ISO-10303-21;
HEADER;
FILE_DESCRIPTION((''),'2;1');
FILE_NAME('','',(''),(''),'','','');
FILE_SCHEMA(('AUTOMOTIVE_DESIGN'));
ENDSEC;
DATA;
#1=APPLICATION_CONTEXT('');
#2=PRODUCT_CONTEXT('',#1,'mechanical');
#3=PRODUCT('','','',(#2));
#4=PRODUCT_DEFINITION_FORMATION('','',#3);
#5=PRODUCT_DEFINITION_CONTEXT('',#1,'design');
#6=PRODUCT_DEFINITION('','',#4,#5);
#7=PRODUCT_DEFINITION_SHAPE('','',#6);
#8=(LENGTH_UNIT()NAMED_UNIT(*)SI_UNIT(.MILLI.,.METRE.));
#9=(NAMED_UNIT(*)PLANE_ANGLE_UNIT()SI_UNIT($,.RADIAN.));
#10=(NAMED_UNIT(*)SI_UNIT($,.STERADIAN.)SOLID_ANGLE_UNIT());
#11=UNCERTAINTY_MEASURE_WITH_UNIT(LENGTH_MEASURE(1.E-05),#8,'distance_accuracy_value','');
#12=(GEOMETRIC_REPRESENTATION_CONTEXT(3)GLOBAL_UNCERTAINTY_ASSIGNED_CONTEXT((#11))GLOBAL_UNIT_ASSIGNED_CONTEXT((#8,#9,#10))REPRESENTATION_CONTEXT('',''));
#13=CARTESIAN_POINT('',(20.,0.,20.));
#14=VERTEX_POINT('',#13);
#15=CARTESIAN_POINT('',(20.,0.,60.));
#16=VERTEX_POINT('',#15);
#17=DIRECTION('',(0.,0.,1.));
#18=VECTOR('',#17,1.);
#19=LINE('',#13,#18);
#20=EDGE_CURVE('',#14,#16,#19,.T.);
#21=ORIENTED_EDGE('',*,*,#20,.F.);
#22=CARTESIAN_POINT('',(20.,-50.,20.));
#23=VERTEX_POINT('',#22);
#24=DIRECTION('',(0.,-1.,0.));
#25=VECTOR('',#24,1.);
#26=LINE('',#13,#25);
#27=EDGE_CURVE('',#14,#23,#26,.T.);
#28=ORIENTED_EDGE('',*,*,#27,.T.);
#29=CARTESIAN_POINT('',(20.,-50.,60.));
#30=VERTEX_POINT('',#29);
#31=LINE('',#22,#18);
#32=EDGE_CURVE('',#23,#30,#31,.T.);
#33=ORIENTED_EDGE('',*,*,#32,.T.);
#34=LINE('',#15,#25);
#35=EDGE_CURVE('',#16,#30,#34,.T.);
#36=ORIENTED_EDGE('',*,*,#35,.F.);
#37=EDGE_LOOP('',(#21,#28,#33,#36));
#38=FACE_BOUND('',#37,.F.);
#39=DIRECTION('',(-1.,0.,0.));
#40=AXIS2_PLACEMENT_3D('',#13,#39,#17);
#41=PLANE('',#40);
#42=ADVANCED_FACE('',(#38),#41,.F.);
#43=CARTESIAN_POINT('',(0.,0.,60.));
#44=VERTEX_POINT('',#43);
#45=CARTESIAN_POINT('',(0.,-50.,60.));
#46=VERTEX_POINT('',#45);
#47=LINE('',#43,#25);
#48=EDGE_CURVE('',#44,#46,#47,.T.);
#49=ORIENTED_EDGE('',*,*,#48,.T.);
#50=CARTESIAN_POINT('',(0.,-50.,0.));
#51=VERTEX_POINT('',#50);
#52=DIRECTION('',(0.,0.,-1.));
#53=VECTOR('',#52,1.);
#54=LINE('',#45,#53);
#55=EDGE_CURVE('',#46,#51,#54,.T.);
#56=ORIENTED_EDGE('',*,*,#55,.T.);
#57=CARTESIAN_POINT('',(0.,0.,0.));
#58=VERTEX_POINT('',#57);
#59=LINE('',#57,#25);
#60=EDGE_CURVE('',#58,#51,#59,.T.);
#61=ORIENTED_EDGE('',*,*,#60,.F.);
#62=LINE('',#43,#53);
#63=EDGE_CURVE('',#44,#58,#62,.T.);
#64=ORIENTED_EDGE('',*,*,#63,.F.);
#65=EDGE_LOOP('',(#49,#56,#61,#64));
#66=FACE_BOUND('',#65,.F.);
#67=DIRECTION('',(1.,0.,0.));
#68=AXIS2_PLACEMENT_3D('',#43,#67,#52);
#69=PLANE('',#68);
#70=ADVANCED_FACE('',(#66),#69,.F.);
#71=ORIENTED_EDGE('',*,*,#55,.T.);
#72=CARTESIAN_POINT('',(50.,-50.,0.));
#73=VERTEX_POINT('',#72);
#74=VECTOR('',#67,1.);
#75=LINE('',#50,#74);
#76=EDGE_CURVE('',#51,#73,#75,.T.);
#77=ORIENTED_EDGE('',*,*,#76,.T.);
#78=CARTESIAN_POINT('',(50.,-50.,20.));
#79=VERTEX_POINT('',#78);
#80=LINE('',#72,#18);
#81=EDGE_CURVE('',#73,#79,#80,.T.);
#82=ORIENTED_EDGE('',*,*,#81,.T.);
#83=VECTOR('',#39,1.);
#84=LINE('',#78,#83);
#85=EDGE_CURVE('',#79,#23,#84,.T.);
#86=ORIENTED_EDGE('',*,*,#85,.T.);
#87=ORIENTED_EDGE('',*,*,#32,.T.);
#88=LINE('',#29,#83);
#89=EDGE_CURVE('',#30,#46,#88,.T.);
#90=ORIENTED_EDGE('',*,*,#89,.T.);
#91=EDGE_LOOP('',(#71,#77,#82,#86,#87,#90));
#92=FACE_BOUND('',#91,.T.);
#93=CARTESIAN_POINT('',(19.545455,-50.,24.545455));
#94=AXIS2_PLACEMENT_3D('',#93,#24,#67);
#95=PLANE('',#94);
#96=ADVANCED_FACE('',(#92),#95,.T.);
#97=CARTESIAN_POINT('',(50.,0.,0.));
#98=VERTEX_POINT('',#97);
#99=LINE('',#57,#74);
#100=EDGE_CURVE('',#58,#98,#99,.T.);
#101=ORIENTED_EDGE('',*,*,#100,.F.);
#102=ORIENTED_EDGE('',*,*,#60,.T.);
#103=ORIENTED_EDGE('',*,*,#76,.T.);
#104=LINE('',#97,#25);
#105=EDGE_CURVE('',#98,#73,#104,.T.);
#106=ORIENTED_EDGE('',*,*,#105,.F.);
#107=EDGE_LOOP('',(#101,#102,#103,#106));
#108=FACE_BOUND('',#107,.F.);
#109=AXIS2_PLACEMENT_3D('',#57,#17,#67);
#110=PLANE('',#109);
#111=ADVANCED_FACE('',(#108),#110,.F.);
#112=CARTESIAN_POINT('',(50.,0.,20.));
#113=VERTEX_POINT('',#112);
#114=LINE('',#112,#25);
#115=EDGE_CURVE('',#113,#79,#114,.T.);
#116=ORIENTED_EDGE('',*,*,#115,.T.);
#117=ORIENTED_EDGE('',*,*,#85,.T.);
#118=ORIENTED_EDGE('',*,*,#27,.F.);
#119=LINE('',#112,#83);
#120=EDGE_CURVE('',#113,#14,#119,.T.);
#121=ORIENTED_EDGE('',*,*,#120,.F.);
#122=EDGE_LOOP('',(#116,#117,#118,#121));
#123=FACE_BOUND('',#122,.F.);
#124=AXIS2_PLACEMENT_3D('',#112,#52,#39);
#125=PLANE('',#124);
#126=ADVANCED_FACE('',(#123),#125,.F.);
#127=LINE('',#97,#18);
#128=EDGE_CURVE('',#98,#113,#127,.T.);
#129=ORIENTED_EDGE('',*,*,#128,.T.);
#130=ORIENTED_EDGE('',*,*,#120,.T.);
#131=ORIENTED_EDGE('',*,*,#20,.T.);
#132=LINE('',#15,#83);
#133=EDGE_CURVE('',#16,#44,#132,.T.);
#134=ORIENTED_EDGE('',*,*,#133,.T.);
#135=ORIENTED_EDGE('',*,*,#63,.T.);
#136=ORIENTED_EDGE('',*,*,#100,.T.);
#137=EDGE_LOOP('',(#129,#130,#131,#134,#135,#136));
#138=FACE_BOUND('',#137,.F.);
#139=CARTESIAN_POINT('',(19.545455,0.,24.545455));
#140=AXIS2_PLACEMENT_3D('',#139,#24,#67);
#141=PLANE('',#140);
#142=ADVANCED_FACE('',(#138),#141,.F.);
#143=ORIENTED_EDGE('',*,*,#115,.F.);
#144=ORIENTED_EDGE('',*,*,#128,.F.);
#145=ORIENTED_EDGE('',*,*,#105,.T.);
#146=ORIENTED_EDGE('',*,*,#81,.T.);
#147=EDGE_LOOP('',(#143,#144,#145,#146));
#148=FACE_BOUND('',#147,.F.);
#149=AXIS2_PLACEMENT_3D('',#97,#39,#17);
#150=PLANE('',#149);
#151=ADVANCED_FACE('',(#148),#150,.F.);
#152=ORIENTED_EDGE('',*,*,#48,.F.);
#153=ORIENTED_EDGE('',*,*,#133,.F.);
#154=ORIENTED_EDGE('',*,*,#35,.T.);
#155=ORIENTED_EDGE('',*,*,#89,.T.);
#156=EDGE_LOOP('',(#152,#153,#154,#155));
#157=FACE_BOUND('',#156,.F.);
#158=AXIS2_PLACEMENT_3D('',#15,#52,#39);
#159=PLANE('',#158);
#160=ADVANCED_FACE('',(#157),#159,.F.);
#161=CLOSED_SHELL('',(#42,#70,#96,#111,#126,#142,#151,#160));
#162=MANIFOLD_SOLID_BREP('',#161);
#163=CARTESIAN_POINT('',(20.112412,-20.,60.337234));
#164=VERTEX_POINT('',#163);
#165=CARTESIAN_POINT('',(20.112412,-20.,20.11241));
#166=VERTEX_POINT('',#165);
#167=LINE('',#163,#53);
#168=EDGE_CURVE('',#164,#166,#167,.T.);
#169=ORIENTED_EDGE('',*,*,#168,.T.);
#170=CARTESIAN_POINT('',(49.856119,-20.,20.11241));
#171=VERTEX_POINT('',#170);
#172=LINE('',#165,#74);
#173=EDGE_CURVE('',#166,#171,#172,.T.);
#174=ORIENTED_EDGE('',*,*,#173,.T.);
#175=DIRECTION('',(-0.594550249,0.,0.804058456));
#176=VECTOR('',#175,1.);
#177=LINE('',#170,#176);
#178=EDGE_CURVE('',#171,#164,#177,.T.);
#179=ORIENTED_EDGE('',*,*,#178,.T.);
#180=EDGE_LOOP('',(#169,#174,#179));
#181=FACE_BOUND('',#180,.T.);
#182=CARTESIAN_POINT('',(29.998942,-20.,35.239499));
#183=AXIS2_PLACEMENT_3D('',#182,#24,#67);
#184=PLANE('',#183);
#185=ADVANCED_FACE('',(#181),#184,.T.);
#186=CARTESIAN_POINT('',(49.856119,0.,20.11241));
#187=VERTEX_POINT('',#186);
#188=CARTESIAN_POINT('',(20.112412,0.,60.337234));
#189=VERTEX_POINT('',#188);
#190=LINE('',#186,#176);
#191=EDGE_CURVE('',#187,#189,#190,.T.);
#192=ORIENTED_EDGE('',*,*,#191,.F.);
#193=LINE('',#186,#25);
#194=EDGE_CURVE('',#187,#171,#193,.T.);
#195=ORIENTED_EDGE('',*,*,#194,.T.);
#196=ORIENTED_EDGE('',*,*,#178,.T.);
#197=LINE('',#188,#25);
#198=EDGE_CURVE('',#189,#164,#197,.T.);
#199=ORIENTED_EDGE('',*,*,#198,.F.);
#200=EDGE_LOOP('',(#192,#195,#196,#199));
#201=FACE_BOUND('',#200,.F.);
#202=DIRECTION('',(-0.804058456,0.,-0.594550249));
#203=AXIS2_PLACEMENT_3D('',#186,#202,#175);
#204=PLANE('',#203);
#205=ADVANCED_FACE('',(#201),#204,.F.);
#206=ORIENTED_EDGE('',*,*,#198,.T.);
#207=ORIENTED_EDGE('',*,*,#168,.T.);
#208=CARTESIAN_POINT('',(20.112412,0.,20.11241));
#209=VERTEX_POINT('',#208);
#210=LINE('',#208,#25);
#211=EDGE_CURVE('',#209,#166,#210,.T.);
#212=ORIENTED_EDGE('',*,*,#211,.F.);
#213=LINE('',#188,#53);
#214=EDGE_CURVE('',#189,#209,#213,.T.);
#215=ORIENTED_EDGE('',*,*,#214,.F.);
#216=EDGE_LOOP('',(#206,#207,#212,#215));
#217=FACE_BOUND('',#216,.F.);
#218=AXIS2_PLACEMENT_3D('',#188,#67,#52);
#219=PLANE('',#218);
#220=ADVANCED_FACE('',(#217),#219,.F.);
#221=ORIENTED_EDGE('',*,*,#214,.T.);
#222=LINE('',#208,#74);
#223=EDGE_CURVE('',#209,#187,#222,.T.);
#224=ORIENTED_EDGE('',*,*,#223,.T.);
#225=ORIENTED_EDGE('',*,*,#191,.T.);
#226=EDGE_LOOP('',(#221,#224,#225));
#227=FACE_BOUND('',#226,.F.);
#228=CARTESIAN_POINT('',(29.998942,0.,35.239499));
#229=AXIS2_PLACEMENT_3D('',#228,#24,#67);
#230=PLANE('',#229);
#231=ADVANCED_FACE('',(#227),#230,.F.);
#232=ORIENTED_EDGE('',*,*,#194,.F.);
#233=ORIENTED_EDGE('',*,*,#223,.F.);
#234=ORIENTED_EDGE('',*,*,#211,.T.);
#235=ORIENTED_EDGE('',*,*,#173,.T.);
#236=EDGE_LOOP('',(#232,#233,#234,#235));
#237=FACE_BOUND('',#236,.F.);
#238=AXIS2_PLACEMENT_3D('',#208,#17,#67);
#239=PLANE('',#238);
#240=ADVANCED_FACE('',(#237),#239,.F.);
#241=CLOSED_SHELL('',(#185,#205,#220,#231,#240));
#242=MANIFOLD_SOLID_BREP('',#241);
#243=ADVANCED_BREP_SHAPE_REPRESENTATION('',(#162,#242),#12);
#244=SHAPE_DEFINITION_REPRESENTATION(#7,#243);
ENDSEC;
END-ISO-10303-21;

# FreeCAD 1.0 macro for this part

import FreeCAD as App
import Part
import Sketcher
from FreeCAD import Vector

doc = App.newDocument("Part")
body = doc.addObject("PartDesign::Body", "Body")

sketch1 = body.newObject("Sketcher::SketchObject", "Sketch")
sketch1.AttachmentSupport = (doc.getObject("XZ_Plane"), [""])
sketch1.MapMode = "FlatFace"
sketch1.addGeometry([
    Part.LineSegment(Vector(0, 60, 0), Vector(0, 0, 0)),
    Part.LineSegment(Vector(0, 0, 0), Vector(50, 0, 0)),
    Part.LineSegment(Vector(50, 0, 0), Vector(50, 20, 0)),
    Part.LineSegment(Vector(50, 20, 0), Vector(20, 20, 0)),
    Part.LineSegment(Vector(20, 20, 0), Vector(20, 60, 0)),
    Part.LineSegment(Vector(20, 60, 0), Vector(0, 60, 0)),
], False)
sketch1.addConstraint([
    Sketcher.Constraint("Coincident", 0, 2, 1, 1),
    Sketcher.Constraint("Coincident", 1, 2, 2, 1),
    Sketcher.Constraint("Coincident", 2, 2, 3, 1),
    Sketcher.Constraint("Coincident", 3, 2, 4, 1),
    Sketcher.Constraint("Coincident", 4, 2, 5, 1),
    Sketcher.Constraint("Coincident", 5, 2, 0, 1),
    Sketcher.Constraint("Vertical", 0),
    Sketcher.Constraint("Horizontal", 1),
    Sketcher.Constraint("Vertical", 2),
    Sketcher.Constraint("Horizontal", 3),
    Sketcher.Constraint("Vertical", 4),
    Sketcher.Constraint("Horizontal", 5),
    Sketcher.Constraint("Coincident", 0, 2, -1, 1),
    Sketcher.Constraint("Equal", 5, 2),
    Sketcher.Constraint("DistanceX", 1, 1, 1, 2, 50.0),
    Sketcher.Constraint("DistanceX", 3, 2, 3, 1, 30.0),
    Sketcher.Constraint("DistanceY", 0, 2, 0, 1, 60.0),
])
pad1 = body.newObject("PartDesign::Pad", "Pad")
pad1.Profile = sketch1
pad1.Length = 50
body2 = doc.addObject("PartDesign::Body", "Body001")

sketch2 = body2.newObject("Sketcher::SketchObject", "Sketch001")
sketch2.AttachmentSupport = (doc.getObject("XZ_Plane001"), [""])
sketch2.MapMode = "FlatFace"
sketch2.addGeometry([
    Part.LineSegment(Vector(49.856119, 20.11241, 0), Vector(20.112412, 60.337234, 0)),
    Part.LineSegment(Vector(20.112412, 60.337234, 0), Vector(20.112412, 20.11241, 0)),
    Part.LineSegment(Vector(20.112412, 20.11241, 0), Vector(49.856119, 20.11241, 0)),
], False)
sketch2.addConstraint([
    Sketcher.Constraint("Coincident", 0, 2, 1, 1),
    Sketcher.Constraint("Coincident", 1, 2, 2, 1),
    Sketcher.Constraint("Coincident", 2, 2, 0, 1),
    Sketcher.Constraint("Vertical", 1),
    Sketcher.Constraint("Horizontal", 2),
    Sketcher.Constraint("Distance", 0, 50.027238),
    Sketcher.Constraint("DistanceX", 2, 1, 2, 2, 29.743707),
    Sketcher.Constraint("DistanceX", -1, 1, 0, 2, 20.112412),
    Sketcher.Constraint("DistanceY", -1, 1, 1, 2, 20.11241),
])
pad2 = body2.newObject("PartDesign::Pad", "Pad001")
pad2.Profile = sketch2
pad2.Length = 20

doc.recompute()
